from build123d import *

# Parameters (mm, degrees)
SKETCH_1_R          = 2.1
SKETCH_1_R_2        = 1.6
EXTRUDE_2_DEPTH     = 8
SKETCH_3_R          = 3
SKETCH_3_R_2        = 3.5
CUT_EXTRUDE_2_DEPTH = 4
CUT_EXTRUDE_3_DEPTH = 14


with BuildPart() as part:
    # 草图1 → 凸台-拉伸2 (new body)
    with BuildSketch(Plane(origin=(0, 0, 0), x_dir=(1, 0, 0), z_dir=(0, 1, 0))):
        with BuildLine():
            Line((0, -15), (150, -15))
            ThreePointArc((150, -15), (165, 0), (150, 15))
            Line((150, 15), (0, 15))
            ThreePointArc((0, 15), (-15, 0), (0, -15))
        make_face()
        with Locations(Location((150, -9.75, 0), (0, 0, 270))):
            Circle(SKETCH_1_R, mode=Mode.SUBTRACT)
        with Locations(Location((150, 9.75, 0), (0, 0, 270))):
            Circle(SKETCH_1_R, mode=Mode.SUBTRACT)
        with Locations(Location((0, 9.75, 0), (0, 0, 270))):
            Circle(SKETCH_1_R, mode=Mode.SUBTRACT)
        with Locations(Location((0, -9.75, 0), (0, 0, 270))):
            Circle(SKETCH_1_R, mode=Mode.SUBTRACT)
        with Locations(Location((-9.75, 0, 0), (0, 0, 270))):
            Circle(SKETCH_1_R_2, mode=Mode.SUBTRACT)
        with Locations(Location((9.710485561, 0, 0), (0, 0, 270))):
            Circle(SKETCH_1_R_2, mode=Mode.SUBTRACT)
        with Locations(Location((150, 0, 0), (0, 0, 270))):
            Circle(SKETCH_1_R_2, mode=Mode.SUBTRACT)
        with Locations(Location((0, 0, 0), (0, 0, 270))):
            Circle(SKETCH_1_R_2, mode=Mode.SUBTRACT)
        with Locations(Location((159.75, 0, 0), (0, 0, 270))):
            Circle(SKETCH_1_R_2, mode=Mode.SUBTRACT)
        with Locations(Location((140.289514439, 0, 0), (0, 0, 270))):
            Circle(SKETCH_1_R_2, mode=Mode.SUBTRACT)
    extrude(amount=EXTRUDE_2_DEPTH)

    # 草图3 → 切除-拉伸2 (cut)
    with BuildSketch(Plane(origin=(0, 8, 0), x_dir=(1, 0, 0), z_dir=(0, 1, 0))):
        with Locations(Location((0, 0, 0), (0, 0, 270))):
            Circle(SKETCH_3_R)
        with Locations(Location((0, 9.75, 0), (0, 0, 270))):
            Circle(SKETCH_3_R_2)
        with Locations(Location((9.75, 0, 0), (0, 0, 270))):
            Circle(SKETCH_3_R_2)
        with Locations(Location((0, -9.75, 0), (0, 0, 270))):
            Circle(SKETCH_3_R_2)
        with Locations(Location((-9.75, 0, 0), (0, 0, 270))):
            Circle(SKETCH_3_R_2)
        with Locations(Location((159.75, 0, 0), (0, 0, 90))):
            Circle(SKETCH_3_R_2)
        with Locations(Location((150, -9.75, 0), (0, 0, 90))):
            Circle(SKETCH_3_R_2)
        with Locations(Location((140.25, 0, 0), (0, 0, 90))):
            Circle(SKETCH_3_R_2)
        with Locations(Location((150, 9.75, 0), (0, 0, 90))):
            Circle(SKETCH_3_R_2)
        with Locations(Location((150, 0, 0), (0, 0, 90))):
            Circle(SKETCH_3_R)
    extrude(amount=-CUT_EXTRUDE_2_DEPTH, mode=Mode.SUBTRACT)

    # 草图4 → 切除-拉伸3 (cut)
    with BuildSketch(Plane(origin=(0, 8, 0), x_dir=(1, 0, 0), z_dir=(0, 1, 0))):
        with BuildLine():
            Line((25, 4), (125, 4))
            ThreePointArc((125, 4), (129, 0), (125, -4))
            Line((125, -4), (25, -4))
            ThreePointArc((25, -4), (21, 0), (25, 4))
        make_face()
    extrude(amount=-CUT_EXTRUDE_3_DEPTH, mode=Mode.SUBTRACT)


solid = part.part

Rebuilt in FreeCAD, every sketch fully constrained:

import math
import FreeCAD as App
import Part
import Sketcher

V = App.Vector
Q = App.Units.Quantity

doc = App.newDocument("Part")
body = doc.addObject("PartDesign::Body", "Body")

# Sketch on XZ plane
sketch1 = body.newObject("Sketcher::SketchObject", "Sketch")
sketch1.AttachmentSupport = (doc.getObject("XZ_Plane"), [""])
sketch1.MapMode = "FlatFace"
sketch1.addGeometry(Part.LineSegment(V(0, 15, 0), V(150, 15, 0)), False)
sketch1.addGeometry(Part.ArcOfCircle(Part.Circle(V(150, 0, 0), V(0, 0, 1), 15), math.radians(-90), math.radians(90)), False)
sketch1.addGeometry(Part.LineSegment(V(150, -15, 0), V(0, -15, 0)), False)
sketch1.addGeometry(Part.ArcOfCircle(Part.Circle(V(0, 0, 0), V(0, 0, 1), 15), math.radians(90), math.radians(270)), False)
sketch1.addGeometry(Part.Circle(V(0, 9.75, 0), V(0, 0, 1), 2.1), False)
sketch1.addGeometry(Part.Circle(V(-9.75, 0, 0), V(0, 0, 1), 1.6), False)
sketch1.addGeometry(Part.Circle(V(0, 0, 0), V(0, 0, 1), 1.6), False)
sketch1.addGeometry(Part.Circle(V(9.710486, 0, 0), V(0, 0, 1), 1.6), False)
sketch1.addGeometry(Part.Circle(V(150, 9.75, 0), V(0, 0, 1), 2.1), False)
sketch1.addGeometry(Part.Circle(V(140.289514, 0, 0), V(0, 0, 1), 1.6), False)
sketch1.addGeometry(Part.Circle(V(150, 0, 0), V(0, 0, 1), 1.6), False)
sketch1.addGeometry(Part.Circle(V(159.75, 0, 0), V(0, 0, 1), 1.6), False)
sketch1.addGeometry(Part.Circle(V(0, -9.75, 0), V(0, 0, 1), 2.1), False)
sketch1.addGeometry(Part.Circle(V(150, -9.75, 0), V(0, 0, 1), 2.1), False)
sketch1.addConstraint(Sketcher.Constraint("Tangent", 0, 2, 1, 2))
sketch1.addConstraint(Sketcher.Constraint("Tangent", 1, 1, 2, 1))
sketch1.addConstraint(Sketcher.Constraint("Tangent", 2, 2, 3, 2))
sketch1.addConstraint(Sketcher.Constraint("Tangent", 3, 1, 0, 1))
sketch1.addConstraint(Sketcher.Constraint("Horizontal", 0))
sketch1.addConstraint(Sketcher.Constraint("Horizontal", 2))
sketch1.addConstraint(Sketcher.Constraint("Coincident", 3, 3, -1, 1))
sketch1.addConstraint(Sketcher.Constraint("Coincident", 6, 3, -1, 1))
sketch1.addConstraint(Sketcher.Constraint("Coincident", 10, 3, 1, 3))
sketch1.addConstraint(Sketcher.Constraint("Equal", 5, 6))
sketch1.addConstraint(Sketcher.Constraint("Equal", 6, 7))
sketch1.addConstraint(Sketcher.Constraint("Equal", 4, 8))
sketch1.addConstraint(Sketcher.Constraint("Equal", 7, 9))
sketch1.addConstraint(Sketcher.Constraint("Equal", 9, 10))
sketch1.addConstraint(Sketcher.Constraint("Equal", 10, 11))
sketch1.addConstraint(Sketcher.Constraint("Equal", 8, 12))
sketch1.addConstraint(Sketcher.Constraint("Equal", 12, 13))
sketch1.addConstraint(Sketcher.Constraint("Symmetric", 4, 3, 12, 3, -1, 1))
sketch1.addConstraint(Sketcher.Constraint("Symmetric", 8, 3, 13, 3, -1))
sketch1.addConstraint(Sketcher.Constraint("PointOnObject", 4, 3, -2))
sketch1.addConstraint(Sketcher.Constraint("PointOnObject", 5, 3, -1))
sketch1.addConstraint(Sketcher.Constraint("PointOnObject", 7, 3, -1))
sketch1.addConstraint(Sketcher.Constraint("PointOnObject", 9, 3, -1))
sketch1.addConstraint(Sketcher.Constraint("PointOnObject", 11, 3, -1))
sketch1.addConstraint(Sketcher.Constraint("Horizontal", 4, 3, 8, 3))
sketch1.addConstraint(Sketcher.Constraint("Vertical", 1, 3, 8, 3))
sketch1.addConstraint(Sketcher.Constraint("Radius", 1, Q("15 mm")))
sketch1.addConstraint(Sketcher.Constraint("Diameter", 4, Q("4.2 mm")))
sketch1.addConstraint(Sketcher.Constraint("Diameter", 5, Q("3.2 mm")))
sketch1.addConstraint(Sketcher.Constraint("DistanceX", 0, 1, 0, 2, Q("150 mm")))
sketch1.addConstraint(Sketcher.Constraint("DistanceY", 12, 3, 4, 3, Q("19.5 mm")))
sketch1.addConstraint(Sketcher.Constraint("DistanceX", 5, 3, -1, 1, Q("9.75 mm")))
sketch1.addConstraint(Sketcher.Constraint("DistanceX", -1, 1, 11, 3, Q("159.75 mm")))
sketch1.addConstraint(Sketcher.Constraint("DistanceX", 7, 3, 9, 3, Q("130.579029 mm")))
sketch1.addConstraint(Sketcher.Constraint("DistanceX", -1, 1, 7, 3, Q("9.710486 mm")))
pad1 = body.newObject("PartDesign::Pad", "Pad")
pad1.Profile = sketch1
pad1.Length = 8
pad1.Reversed = True

# Sketch on XZ plane
sketch2 = body.newObject("Sketcher::SketchObject", "Sketch001")
sketch2.AttachmentSupport = (doc.getObject("XZ_Plane"), [""])
sketch2.MapMode = "FlatFace"
sketch2.AttachmentOffset = App.Placement(V(0, 0, -8), App.Rotation())
sketch2.addGeometry(Part.Circle(V(0, 0, 0), V(0, 0, 1), 3), False)
sketch2.addGeometry(Part.Circle(V(0, -9.75, 0), V(0, 0, 1), 3.5), False)
sketch2.addGeometry(Part.Circle(V(9.75, 0, 0), V(0, 0, 1), 3.5), False)
sketch2.addGeometry(Part.Circle(V(0, 9.75, 0), V(0, 0, 1), 3.5), False)
sketch2.addGeometry(Part.Circle(V(-9.75, 0, 0), V(0, 0, 1), 3.5), False)
sketch2.addGeometry(Part.Circle(V(159.75, 0, 0), V(0, 0, 1), 3.5), False)
sketch2.addGeometry(Part.Circle(V(150, 9.75, 0), V(0, 0, 1), 3.5), False)
sketch2.addGeometry(Part.Circle(V(140.25, 0, 0), V(0, 0, 1), 3.5), False)
sketch2.addGeometry(Part.Circle(V(150, -9.75, 0), V(0, 0, 1), 3.5), False)
sketch2.addGeometry(Part.Circle(V(150, 0, 0), V(0, 0, 1), 3), False)
sketch2.addConstraint(Sketcher.Constraint("Coincident", 0, 3, -1, 1))
sketch2.addConstraint(Sketcher.Constraint("Equal", 1, 2))
sketch2.addConstraint(Sketcher.Constraint("Equal", 2, 3))
sketch2.addConstraint(Sketcher.Constraint("Equal", 3, 4))
sketch2.addConstraint(Sketcher.Constraint("Equal", 4, 5))
sketch2.addConstraint(Sketcher.Constraint("Equal", 5, 6))
sketch2.addConstraint(Sketcher.Constraint("Equal", 6, 7))
sketch2.addConstraint(Sketcher.Constraint("Equal", 7, 8))
sketch2.addConstraint(Sketcher.Constraint("Equal", 0, 9))
sketch2.addConstraint(Sketcher.Constraint("Symmetric", 1, 3, 3, 3, -1, 1))
sketch2.addConstraint(Sketcher.Constraint("Symmetric", 2, 3, 4, 3, -1, 1))
sketch2.addConstraint(Sketcher.Constraint("Symmetric", 6, 3, 8, 3, -1))
sketch2.addConstraint(Sketcher.Constraint("PointOnObject", 1, 3, -2))
sketch2.addConstraint(Sketcher.Constraint("PointOnObject", 2, 3, -1))
sketch2.addConstraint(Sketcher.Constraint("PointOnObject", 5, 3, -1))
sketch2.addConstraint(Sketcher.Constraint("PointOnObject", 7, 3, -1))
sketch2.addConstraint(Sketcher.Constraint("PointOnObject", 9, 3, -1))
sketch2.addConstraint(Sketcher.Constraint("Horizontal", 3, 3, 6, 3))
sketch2.addConstraint(Sketcher.Constraint("Vertical", 8, 3, 9, 3))
sketch2.addConstraint(Sketcher.Constraint("Diameter", 0, Q("6 mm")))
sketch2.addConstraint(Sketcher.Constraint("Diameter", 1, Q("7 mm")))
sketch2.addConstraint(Sketcher.Constraint("DistanceX", -1, 1, 6, 3, Q("150 mm")))
sketch2.addConstraint(Sketcher.Constraint("DistanceX", 2, 3, 5, 3, Q("150 mm")))
sketch2.addConstraint(Sketcher.Constraint("DistanceY", 1, 3, 3, 3, Q("19.5 mm")))
sketch2.addConstraint(Sketcher.Constraint("DistanceX", 4, 3, 2, 3, Q("19.5 mm")))
sketch2.addConstraint(Sketcher.Constraint("DistanceX", 7, 3, 5, 3, Q("19.5 mm")))
pocket1 = body.newObject("PartDesign::Pocket", "Pocket")
pocket1.Profile = sketch2
pocket1.Length = 4
pocket1.Reversed = True

# Sketch on XZ plane
sketch3 = body.newObject("Sketcher::SketchObject", "Sketch002")
sketch3.AttachmentSupport = (doc.getObject("XZ_Plane"), [""])
sketch3.MapMode = "FlatFace"
sketch3.AttachmentOffset = App.Placement(V(0, 0, -8), App.Rotation())
sketch3.addGeometry(Part.LineSegment(V(125, -4, 0), V(25, -4, 0)), False)
sketch3.addGeometry(Part.ArcOfCircle(Part.Circle(V(25, 0, 0), V(0, 0, 1), 4), math.radians(90), math.radians(270)), False)
sketch3.addGeometry(Part.LineSegment(V(25, 4, 0), V(125, 4, 0)), False)
sketch3.addGeometry(Part.ArcOfCircle(Part.Circle(V(125, 0, 0), V(0, 0, 1), 4), math.radians(-90), math.radians(90)), False)
sketch3.addConstraint(Sketcher.Constraint("Tangent", 0, 2, 1, 2))
sketch3.addConstraint(Sketcher.Constraint("Tangent", 1, 1, 2, 1))
sketch3.addConstraint(Sketcher.Constraint("Tangent", 2, 2, 3, 2))
sketch3.addConstraint(Sketcher.Constraint("Tangent", 3, 1, 0, 1))
sketch3.addConstraint(Sketcher.Constraint("Horizontal", 0))
sketch3.addConstraint(Sketcher.Constraint("Horizontal", 2))
sketch3.addConstraint(Sketcher.Constraint("PointOnObject", 1, 3, -1))
sketch3.addConstraint(Sketcher.Constraint("Radius", 1, Q("4 mm")))
sketch3.addConstraint(Sketcher.Constraint("DistanceX", 0, 2, 0, 1, Q("100 mm")))
sketch3.addConstraint(Sketcher.Constraint("DistanceX", -1, 1, 1, 3, Q("25 mm")))
pocket2 = body.newObject("PartDesign::Pocket", "Pocket001")
pocket2.Profile = sketch3
pocket2.Length = 14
pocket2.Reversed = True

doc.recompute()
